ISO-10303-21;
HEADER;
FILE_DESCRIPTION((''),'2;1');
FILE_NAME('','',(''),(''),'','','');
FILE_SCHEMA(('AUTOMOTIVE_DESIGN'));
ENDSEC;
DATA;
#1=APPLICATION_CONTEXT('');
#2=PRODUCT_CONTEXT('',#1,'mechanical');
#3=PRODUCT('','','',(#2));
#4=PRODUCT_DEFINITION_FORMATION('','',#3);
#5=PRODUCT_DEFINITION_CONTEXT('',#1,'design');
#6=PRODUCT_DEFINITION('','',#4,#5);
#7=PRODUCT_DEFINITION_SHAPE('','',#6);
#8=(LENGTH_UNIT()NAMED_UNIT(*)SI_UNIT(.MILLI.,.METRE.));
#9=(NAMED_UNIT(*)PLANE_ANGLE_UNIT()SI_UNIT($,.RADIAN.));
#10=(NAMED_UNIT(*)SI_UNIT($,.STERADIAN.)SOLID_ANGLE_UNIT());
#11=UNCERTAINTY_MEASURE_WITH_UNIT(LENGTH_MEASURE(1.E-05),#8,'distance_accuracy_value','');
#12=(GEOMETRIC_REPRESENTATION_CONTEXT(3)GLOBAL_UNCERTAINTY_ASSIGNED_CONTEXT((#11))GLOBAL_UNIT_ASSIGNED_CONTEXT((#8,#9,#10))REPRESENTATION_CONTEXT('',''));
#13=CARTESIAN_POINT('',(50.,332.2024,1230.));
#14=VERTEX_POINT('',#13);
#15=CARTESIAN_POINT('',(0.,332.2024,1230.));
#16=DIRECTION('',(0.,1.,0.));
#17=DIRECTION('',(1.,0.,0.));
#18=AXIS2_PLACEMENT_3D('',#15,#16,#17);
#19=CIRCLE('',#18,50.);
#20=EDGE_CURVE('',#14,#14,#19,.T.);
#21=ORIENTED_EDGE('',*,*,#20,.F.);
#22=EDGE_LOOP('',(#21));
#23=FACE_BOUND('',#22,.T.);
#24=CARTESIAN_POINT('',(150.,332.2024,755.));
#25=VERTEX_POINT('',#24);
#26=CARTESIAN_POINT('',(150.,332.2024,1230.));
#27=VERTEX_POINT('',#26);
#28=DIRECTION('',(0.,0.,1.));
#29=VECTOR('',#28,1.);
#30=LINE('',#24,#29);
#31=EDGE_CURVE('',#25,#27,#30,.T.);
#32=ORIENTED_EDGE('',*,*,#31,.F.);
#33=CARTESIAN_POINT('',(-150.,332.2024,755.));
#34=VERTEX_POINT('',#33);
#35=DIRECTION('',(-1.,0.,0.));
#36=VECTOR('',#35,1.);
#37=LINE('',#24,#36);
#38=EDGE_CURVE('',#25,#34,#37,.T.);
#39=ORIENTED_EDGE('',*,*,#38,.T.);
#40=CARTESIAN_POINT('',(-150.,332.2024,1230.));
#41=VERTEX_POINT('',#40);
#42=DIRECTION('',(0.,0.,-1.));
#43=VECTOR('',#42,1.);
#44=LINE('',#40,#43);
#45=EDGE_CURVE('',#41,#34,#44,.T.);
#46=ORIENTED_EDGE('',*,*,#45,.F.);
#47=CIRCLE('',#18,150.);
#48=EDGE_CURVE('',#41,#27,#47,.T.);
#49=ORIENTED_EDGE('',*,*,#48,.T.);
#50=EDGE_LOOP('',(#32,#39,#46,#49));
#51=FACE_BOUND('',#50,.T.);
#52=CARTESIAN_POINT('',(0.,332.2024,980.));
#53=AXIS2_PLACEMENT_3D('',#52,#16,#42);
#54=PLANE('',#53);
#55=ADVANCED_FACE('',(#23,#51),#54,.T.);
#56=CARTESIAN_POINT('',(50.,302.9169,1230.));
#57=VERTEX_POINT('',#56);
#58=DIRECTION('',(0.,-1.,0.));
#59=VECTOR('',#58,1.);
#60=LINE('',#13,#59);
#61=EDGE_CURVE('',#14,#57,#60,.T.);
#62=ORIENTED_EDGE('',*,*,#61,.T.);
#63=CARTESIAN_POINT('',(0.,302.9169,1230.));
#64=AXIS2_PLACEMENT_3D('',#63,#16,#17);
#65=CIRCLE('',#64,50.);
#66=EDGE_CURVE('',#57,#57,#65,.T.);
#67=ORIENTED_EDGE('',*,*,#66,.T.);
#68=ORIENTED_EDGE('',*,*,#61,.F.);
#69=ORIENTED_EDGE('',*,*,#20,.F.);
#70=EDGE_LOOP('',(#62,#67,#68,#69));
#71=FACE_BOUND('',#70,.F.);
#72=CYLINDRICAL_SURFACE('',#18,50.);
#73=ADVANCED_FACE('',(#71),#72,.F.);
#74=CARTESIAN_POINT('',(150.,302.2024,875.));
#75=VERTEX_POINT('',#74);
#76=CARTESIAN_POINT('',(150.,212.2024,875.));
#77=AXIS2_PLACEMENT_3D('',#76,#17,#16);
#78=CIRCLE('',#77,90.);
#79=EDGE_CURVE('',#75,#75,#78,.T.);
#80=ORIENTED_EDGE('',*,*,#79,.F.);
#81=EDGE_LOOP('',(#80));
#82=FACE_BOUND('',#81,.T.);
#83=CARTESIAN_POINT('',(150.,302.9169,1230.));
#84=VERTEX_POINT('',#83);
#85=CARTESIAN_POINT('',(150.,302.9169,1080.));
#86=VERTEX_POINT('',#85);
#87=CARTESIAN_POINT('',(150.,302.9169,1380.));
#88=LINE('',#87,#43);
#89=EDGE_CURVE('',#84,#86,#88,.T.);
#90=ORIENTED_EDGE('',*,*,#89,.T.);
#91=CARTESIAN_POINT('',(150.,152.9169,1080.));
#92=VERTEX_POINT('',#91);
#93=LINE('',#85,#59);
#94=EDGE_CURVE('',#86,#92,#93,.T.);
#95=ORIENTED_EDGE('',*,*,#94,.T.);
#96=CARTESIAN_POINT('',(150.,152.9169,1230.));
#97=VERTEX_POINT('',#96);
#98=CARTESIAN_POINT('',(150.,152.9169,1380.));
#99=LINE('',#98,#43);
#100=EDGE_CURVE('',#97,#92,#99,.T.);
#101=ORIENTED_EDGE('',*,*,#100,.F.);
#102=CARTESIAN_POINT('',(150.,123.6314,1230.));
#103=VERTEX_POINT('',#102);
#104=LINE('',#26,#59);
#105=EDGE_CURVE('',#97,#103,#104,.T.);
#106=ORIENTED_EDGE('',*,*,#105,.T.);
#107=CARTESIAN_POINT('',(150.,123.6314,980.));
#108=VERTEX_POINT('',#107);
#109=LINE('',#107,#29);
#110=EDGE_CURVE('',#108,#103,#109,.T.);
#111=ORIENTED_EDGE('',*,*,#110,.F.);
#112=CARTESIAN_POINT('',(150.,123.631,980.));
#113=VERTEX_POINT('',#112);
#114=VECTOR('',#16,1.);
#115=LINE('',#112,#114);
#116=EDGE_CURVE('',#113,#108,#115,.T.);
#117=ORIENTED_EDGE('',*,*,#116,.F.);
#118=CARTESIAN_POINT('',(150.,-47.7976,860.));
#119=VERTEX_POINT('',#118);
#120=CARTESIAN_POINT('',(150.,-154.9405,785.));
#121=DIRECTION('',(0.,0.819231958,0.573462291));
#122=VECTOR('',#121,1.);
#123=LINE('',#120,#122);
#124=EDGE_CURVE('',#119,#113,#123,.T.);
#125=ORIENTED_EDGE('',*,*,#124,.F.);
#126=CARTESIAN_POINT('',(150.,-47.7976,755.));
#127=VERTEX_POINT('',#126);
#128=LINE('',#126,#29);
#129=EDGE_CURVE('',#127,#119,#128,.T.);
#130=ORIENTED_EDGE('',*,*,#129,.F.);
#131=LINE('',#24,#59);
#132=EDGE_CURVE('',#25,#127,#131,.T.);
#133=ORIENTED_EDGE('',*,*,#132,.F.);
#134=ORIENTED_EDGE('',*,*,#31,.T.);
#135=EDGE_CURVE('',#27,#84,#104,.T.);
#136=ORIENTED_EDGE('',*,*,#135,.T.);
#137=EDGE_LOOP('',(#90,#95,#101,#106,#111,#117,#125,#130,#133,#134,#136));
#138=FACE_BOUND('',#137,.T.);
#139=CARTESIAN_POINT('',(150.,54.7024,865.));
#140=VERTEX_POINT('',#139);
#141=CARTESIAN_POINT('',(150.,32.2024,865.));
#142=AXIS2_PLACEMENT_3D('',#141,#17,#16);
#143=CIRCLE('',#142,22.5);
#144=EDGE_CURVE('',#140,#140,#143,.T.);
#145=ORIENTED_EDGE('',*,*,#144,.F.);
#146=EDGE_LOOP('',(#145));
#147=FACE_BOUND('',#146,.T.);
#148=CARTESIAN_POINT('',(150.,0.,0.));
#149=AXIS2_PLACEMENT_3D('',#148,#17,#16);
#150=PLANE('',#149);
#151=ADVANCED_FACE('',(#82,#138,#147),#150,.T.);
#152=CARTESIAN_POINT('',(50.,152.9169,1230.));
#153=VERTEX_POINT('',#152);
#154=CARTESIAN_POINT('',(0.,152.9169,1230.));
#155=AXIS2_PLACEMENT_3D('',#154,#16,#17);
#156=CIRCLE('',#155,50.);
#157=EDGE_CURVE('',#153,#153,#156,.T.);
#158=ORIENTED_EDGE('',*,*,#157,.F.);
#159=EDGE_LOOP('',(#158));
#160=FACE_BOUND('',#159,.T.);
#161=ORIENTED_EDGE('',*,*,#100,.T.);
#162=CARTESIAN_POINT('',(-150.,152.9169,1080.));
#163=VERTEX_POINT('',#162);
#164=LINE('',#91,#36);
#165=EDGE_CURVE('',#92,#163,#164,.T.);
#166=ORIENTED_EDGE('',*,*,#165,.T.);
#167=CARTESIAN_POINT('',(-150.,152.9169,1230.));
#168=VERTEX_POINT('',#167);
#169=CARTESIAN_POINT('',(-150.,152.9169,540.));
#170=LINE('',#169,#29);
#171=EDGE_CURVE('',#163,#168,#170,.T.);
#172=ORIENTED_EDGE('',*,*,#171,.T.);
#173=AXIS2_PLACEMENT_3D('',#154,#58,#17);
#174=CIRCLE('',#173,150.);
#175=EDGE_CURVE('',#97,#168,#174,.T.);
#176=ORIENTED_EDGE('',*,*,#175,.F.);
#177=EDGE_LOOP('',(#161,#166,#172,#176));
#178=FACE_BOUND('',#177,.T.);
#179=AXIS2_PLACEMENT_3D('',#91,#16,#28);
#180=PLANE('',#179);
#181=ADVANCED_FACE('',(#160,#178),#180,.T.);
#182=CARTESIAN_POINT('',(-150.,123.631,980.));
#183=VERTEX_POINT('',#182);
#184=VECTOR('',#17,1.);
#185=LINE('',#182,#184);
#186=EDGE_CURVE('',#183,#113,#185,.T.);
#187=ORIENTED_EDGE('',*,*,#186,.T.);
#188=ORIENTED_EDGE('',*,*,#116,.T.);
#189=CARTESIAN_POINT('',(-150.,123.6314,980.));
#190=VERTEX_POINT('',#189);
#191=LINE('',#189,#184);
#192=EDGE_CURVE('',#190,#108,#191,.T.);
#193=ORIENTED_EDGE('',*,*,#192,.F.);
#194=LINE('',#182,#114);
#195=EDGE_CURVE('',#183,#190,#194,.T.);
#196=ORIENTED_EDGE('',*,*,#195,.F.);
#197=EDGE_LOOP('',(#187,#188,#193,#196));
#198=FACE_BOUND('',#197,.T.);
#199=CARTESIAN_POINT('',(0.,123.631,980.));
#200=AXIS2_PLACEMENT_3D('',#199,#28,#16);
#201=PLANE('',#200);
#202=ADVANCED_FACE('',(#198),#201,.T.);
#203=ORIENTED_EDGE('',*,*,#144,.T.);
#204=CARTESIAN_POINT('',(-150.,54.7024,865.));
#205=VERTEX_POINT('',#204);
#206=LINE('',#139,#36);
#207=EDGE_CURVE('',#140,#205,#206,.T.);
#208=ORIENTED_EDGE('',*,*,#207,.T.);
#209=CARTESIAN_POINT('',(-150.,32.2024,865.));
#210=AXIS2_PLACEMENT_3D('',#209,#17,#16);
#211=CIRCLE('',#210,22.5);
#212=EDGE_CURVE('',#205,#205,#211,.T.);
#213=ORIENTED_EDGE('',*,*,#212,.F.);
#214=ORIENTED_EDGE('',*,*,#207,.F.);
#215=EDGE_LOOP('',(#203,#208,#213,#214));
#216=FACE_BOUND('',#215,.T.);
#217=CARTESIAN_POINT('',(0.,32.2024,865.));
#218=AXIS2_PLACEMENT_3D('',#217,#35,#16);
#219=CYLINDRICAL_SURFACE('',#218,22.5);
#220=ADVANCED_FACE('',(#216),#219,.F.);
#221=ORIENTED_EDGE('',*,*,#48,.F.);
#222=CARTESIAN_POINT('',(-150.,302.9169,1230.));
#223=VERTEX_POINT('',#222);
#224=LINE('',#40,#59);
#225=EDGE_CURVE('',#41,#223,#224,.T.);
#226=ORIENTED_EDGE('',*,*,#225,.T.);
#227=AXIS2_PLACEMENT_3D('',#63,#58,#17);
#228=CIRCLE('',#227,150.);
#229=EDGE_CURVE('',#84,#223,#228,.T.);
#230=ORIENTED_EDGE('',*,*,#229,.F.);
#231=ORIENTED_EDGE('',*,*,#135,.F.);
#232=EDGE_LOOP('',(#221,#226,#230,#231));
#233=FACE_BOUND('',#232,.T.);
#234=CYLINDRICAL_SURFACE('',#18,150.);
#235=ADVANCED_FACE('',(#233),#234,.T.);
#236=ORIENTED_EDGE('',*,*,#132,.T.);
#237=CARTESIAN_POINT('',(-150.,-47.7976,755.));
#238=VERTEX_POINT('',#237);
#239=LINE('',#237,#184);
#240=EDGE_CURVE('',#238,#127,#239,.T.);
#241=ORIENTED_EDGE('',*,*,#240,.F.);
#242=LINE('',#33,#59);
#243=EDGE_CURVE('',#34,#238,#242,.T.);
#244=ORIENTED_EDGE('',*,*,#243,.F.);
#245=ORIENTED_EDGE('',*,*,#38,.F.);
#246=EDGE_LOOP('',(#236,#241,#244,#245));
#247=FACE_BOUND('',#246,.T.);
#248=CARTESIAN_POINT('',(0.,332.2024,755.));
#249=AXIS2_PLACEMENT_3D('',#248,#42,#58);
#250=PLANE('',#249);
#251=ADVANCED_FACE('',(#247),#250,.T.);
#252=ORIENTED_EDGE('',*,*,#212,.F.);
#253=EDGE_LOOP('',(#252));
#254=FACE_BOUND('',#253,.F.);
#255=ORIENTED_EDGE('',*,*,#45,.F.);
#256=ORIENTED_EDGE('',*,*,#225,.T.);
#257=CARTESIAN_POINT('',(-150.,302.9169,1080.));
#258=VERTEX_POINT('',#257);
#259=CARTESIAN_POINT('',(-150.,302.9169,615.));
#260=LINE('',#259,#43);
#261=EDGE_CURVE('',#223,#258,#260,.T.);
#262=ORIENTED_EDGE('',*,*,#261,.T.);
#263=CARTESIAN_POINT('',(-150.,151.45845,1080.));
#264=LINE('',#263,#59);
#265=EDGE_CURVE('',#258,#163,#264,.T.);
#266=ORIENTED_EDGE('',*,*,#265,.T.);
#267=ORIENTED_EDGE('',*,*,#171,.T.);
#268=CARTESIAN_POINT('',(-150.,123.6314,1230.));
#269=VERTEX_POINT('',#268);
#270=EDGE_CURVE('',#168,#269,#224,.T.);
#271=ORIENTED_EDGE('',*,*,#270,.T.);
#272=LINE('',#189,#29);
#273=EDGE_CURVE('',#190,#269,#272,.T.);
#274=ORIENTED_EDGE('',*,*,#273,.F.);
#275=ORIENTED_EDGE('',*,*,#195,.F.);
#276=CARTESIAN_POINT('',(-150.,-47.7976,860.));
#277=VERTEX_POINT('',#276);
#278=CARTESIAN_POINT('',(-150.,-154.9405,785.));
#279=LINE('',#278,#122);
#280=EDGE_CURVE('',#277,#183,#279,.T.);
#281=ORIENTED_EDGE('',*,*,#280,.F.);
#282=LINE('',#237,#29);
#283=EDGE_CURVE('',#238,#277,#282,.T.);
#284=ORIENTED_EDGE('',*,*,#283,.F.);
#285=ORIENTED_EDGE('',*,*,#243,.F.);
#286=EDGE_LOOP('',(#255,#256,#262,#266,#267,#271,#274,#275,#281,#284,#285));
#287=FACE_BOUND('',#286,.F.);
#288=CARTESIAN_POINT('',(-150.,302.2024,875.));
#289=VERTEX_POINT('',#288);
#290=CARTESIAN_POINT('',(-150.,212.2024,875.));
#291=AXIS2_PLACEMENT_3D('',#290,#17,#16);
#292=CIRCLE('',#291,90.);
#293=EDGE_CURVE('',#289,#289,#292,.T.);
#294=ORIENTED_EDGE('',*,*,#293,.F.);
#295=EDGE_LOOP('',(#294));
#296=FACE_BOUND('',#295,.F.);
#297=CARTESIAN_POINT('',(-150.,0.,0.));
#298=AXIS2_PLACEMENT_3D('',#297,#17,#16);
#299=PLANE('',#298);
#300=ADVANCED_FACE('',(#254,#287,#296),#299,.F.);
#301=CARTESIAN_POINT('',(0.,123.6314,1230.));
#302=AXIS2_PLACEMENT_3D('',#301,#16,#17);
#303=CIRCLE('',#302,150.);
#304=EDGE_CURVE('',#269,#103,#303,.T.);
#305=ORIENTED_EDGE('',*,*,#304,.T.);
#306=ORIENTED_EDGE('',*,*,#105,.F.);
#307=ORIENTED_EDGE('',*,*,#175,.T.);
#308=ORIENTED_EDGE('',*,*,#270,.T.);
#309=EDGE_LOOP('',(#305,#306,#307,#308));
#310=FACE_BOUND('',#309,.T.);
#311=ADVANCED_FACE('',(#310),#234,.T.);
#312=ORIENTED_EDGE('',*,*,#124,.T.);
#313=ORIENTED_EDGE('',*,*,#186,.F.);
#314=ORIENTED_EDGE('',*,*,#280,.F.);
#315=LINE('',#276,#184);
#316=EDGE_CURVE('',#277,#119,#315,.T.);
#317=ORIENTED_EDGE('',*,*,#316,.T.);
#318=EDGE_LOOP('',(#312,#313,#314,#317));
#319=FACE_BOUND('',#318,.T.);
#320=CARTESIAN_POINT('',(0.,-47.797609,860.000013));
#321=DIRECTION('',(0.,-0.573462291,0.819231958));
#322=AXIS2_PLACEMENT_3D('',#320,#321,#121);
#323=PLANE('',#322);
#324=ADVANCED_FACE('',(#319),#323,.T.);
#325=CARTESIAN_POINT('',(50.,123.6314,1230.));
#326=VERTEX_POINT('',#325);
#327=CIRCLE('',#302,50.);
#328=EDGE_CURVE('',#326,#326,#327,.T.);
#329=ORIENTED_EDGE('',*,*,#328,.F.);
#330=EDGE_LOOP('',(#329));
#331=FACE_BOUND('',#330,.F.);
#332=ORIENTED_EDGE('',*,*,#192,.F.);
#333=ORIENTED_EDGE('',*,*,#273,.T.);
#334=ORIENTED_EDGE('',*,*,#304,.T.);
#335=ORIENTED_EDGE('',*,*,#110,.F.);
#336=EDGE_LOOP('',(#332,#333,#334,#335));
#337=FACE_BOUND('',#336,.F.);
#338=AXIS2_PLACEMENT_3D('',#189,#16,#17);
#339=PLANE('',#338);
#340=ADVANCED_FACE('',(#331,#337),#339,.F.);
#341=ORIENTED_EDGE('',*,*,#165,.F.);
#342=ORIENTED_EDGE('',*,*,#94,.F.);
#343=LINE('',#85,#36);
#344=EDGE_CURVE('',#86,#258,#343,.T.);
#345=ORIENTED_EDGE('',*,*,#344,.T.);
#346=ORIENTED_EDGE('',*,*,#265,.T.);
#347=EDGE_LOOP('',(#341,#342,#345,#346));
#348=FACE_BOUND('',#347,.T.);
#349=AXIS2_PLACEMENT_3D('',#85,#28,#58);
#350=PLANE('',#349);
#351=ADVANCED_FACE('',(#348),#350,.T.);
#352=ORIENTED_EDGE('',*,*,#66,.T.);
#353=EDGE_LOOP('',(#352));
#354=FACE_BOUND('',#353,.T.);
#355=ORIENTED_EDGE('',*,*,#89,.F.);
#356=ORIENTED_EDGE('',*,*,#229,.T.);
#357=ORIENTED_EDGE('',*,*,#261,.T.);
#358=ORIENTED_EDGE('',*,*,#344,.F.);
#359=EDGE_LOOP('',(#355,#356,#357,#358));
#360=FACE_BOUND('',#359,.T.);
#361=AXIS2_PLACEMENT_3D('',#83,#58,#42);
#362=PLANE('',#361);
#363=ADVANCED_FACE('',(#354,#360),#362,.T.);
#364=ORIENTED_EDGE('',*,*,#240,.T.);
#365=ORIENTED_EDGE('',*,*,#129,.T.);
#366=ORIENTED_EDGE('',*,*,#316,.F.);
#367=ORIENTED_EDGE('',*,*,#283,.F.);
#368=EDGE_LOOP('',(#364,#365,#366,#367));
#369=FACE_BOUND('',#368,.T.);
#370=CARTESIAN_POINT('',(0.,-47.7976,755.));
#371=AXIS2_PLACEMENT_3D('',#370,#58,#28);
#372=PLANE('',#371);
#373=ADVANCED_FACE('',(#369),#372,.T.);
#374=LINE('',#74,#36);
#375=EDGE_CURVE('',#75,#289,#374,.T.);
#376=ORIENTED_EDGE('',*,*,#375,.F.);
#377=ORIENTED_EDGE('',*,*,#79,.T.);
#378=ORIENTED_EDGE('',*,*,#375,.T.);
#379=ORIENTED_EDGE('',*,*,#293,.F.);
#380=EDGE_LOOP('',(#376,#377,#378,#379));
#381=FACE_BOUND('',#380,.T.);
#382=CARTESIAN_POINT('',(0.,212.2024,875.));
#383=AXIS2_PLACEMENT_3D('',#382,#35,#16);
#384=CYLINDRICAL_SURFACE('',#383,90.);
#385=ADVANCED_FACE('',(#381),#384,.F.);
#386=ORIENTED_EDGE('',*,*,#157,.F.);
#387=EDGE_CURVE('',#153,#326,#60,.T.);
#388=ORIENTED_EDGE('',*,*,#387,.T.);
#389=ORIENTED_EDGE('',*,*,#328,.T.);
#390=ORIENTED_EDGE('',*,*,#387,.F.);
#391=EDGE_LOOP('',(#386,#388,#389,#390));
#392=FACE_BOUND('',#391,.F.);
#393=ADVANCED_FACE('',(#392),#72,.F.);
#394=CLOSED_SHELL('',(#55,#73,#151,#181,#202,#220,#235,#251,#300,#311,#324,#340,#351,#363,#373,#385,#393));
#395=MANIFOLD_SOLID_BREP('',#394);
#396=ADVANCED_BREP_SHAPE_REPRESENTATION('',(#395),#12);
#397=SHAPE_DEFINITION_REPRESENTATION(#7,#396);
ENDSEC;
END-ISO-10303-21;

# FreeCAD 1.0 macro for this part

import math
import FreeCAD as App
import Part
import Sketcher
from FreeCAD import Vector


def add_polygon(sketch, points):
    """Adds a closed chain of lines whose ends are joined by coincident constraints."""
    first, n = sketch.GeometryCount, len(points)
    for a, b in zip(points, points[1:] + points[:1]):
        sketch.addGeometry(Part.LineSegment(App.Vector(*a, 0), App.Vector(*b, 0)), False)
    for i in range(n):
        sketch.addConstraint(Sketcher.Constraint("Coincident", first + i, 2, first + (i + 1) % n, 1))

doc = App.newDocument("Part")
body = doc.addObject("PartDesign::Body", "Body")

# Sketch on YZ plane
sketch1 = doc.addObject("Sketcher::SketchObject", "Sketch")
body.addObject(sketch1)
sketch1.AttachmentSupport = (doc.YZ_Plane, [""])
sketch1.MapMode = "FlatFace"
add_polygon(sketch1, [(332.2024, 980), (123.630989, 980.000015), (-47.7976, 860), (-47.7976, 755), (332.2024, 755)])  # lines 0-4
sketch1.addGeometry(Part.Circle(Vector(32.2024, 865, 0), Vector(0, 0, 1), 22.5), False)  # 5
sketch1.addGeometry(Part.Circle(Vector(212.2024, 875, 0), Vector(0, 0, 1), 90), False)  # 6
sketch1.addConstraint([
    Sketcher.Constraint("Horizontal", 0),
    Sketcher.Constraint("Vertical", 2),
    Sketcher.Constraint("Horizontal", 3),
    Sketcher.Constraint("Vertical", 4),
    Sketcher.Constraint("Diameter", 5, 45.0),
    Sketcher.Constraint("Diameter", 6, 180.0),
    Sketcher.Constraint("DistanceX", 3, 1, 3, 2, 380.0),
    Sketcher.Constraint("DistanceY", 2, 2, 2, 1, 105.0),
    Sketcher.Constraint("DistanceY", 4, 1, 4, 2, 225.0),
    Sketcher.Constraint("DistanceY", -1, 1, 5, 3, 865.0),
    Sketcher.Constraint("DistanceY", -1, 1, 6, 3, 875.0),
    Sketcher.Constraint("DistanceY", -1, 1, 0, 2, 980.0),
    Sketcher.Constraint("DistanceX", 5, 3, 6, 3, 180.0),
    Sketcher.Constraint("DistanceX", 1, 2, 5, 3, 80.0),
    Sketcher.Constraint("DistanceX", 0, 2, 0, 1, 208.5714),
    Sketcher.Constraint("DistanceX", -1, 1, 0, 2, 123.631),
])
pad1 = doc.addObject("PartDesign::Pad", "Pad")
body.addObject(pad1)
pad1.Profile = sketch1
pad1.Length = 300
pad1.Midplane = True

# Sketch on XZ plane
sketch2 = doc.addObject("Sketcher::SketchObject", "Sketch001")
body.addObject(sketch2)
sketch2.AttachmentSupport = (doc.XZ_Plane, [""])
sketch2.MapMode = "FlatFace"
sketch2.AttachmentOffset = App.Placement(Vector(0, 0, -332.2024), App.Rotation())
sketch2.addGeometry([
    Part.LineSegment(Vector(150, 980, 0), Vector(-150, 980, 0)),  # 0
    Part.LineSegment(Vector(-150, 980, 0), Vector(-150, 1230, 0)),  # 1
    Part.ArcOfCircle(Part.Circle(Vector(0, 1230, 0), Vector(0, 0, 1), 150), math.radians(0), math.radians(180)),  # 2
    Part.LineSegment(Vector(150, 1230, 0), Vector(150, 980, 0)),  # 3
    Part.Circle(Vector(0, 1230, 0), Vector(0, 0, 1), 50),  # 4
], False)
sketch2.addConstraint([
    Sketcher.Constraint("Coincident", 0, 2, 1, 1),
    Sketcher.Constraint("Tangent", 1, 2, 2, 2),
    Sketcher.Constraint("Tangent", 2, 1, 3, 1),
    Sketcher.Constraint("Coincident", 3, 2, 0, 1),
    Sketcher.Constraint("Horizontal", 0),
    Sketcher.Constraint("Vertical", 1),
    Sketcher.Constraint("Vertical", 3),
    Sketcher.Constraint("Coincident", 4, 3, 2, 3),
    Sketcher.Constraint("PointOnObject", 2, 3, -2),
    Sketcher.Constraint("Diameter", 4, 100.0),
    Sketcher.Constraint("DistanceY", 1, 1, 1, 2, 250.0),
    Sketcher.Constraint("Radius", 2, 150.0),
    Sketcher.Constraint("DistanceY", -1, 1, 2, 3, 1230.0),
])
pad2 = doc.addObject("PartDesign::Pad", "Pad001")
body.addObject(pad2)
pad2.Profile = sketch2
pad2.Length = 208.571

# Sketch on YZ plane
sketch3 = doc.addObject("Sketcher::SketchObject", "Sketch002")
body.addObject(sketch3)
sketch3.AttachmentSupport = (doc.YZ_Plane, [""])
sketch3.MapMode = "FlatFace"
sketch3.AttachmentOffset = App.Placement(Vector(0, 0, 150), App.Rotation())
add_polygon(sketch3, [(302.9169, 1080), (302.9169, 1380), (152.9169, 1380), (152.9169, 1080)])  # lines 0-3
sketch3.addConstraint([
    Sketcher.Constraint("Vertical", 0),
    Sketcher.Constraint("Horizontal", 1),
    Sketcher.Constraint("Vertical", 2),
    Sketcher.Constraint("Horizontal", 3),
    Sketcher.Constraint("DistanceX", 1, 2, 1, 1, 150.0),
    Sketcher.Constraint("DistanceY", 0, 1, 0, 2, 300.0),
    Sketcher.Constraint("DistanceY", -1, 1, 0, 2, 1380.0),
    Sketcher.Constraint("DistanceX", -1, 1, 0, 2, 302.917),
])
pocket1 = doc.addObject("PartDesign::Pocket", "Pocket")
body.addObject(pocket1)
pocket1.Profile = sketch3
pocket1.Type = "ThroughAll"

doc.recompute()
